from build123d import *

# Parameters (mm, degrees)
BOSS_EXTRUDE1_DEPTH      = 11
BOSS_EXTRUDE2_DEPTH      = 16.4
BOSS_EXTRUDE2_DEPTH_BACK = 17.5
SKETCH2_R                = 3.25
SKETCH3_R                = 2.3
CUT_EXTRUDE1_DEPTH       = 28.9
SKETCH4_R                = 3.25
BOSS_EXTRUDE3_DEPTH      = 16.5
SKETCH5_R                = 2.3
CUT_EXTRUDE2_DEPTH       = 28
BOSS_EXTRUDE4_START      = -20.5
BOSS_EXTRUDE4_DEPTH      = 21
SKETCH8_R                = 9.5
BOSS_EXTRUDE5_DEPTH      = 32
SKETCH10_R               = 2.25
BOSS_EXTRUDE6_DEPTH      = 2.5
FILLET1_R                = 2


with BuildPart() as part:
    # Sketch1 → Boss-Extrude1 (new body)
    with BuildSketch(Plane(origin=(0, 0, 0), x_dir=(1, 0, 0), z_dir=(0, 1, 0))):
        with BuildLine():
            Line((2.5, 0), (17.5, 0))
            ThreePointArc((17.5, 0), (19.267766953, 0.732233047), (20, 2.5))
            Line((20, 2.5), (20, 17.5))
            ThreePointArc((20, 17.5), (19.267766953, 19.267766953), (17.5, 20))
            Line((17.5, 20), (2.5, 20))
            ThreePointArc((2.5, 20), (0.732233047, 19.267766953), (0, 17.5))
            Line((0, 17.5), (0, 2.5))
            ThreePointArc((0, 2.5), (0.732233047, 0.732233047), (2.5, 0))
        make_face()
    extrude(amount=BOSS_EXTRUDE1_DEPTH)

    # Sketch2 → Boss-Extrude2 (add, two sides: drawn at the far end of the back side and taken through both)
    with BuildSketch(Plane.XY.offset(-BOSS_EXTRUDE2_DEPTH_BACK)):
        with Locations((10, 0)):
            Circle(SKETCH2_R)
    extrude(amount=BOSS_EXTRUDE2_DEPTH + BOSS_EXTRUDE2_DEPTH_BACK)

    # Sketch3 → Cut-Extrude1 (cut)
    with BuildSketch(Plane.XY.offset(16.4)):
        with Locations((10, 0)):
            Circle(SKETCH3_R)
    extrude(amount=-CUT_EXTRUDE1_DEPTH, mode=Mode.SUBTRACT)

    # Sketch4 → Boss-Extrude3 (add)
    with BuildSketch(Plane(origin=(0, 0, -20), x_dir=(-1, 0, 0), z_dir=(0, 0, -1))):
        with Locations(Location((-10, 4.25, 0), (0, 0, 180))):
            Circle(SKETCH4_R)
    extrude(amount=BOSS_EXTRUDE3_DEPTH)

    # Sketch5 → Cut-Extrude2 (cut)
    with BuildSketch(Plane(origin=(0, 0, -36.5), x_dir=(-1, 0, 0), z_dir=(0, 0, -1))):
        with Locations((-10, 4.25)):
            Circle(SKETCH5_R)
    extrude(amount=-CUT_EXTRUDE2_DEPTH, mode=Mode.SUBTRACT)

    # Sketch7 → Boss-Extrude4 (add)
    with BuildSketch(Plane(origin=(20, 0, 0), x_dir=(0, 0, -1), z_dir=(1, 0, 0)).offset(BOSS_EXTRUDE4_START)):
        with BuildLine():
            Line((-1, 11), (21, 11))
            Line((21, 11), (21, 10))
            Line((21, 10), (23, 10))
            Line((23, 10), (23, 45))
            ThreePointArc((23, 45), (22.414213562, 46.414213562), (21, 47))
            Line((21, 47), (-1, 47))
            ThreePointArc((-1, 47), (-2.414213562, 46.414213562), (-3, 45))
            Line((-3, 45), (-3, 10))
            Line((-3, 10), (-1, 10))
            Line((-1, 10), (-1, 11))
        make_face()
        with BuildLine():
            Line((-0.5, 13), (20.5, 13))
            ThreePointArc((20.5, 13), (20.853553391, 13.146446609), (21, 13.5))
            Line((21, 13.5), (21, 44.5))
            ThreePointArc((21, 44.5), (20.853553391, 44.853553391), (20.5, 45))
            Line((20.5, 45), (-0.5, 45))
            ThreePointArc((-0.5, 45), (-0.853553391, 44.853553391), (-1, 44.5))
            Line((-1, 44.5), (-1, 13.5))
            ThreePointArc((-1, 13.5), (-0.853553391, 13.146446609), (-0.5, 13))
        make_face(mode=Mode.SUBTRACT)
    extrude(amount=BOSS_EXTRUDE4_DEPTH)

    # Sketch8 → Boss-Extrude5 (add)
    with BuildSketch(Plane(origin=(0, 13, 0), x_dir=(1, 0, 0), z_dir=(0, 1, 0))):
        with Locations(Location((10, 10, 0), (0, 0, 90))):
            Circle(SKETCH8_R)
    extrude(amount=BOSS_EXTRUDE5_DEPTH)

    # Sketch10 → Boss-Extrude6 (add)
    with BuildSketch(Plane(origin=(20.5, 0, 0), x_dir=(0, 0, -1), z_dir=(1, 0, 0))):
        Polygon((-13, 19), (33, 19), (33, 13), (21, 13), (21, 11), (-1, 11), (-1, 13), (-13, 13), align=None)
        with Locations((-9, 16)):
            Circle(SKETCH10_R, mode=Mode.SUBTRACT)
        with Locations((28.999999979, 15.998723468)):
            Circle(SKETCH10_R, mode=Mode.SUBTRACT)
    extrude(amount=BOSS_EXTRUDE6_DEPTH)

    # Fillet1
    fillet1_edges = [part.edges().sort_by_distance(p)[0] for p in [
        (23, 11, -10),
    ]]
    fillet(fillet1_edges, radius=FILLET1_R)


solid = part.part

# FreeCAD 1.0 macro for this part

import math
import FreeCAD as App
import Part
import Sketcher

V = App.Vector
Q = App.Units.Quantity


def edges_at(feature, points):
    """Names of the edges that pass closest to the given points."""
    edges = feature.Shape.Edges
    near = lambda p: min(range(len(edges)), key=lambda i: edges[i].distToShape(Part.Vertex(*p))[0])
    return sorted({f"Edge{near(p) + 1}" for p in points})


def add_polygon(sketch, points):
    """Adds a closed chain of lines whose ends are joined by coincident constraints."""
    first, n = sketch.GeometryCount, len(points)
    for a, b in zip(points, points[1:] + points[:1]):
        sketch.addGeometry(Part.LineSegment(App.Vector(*a, 0), App.Vector(*b, 0)), False)
    for i in range(n):
        sketch.addConstraint(Sketcher.Constraint("Coincident", first + i, 2, first + (i + 1) % n, 1))

doc = App.newDocument("Part")
body = doc.addObject("PartDesign::Body", "Body")

sketch1 = doc.addObject("Sketcher::SketchObject", "Sketch")
body.addObject(sketch1)
sketch1.AttachmentSupport = (doc.XZ_Plane, [""])
sketch1.MapMode = "FlatFace"
sketch1.addGeometry([
    Part.LineSegment(V(2.5, 0, 0), V(17.5, 0, 0)),
    Part.ArcOfCircle(Part.Circle(V(17.5, -2.5, 0), V(0, 0, 1), 2.5), math.radians(0), math.radians(90)),
    Part.LineSegment(V(20, -2.5, 0), V(20, -17.5, 0)),
    Part.ArcOfCircle(Part.Circle(V(17.5, -17.5, 0), V(0, 0, 1), 2.5), math.radians(-90), math.radians(0)),
    Part.LineSegment(V(17.5, -20, 0), V(2.5, -20, 0)),
    Part.ArcOfCircle(Part.Circle(V(2.5, -17.5, 0), V(0, 0, 1), 2.5), math.radians(180), math.radians(270)),
    Part.LineSegment(V(0, -17.5, 0), V(0, -2.5, 0)),
    Part.ArcOfCircle(Part.Circle(V(2.5, -2.5, 0), V(0, 0, 1), 2.5), math.radians(90), math.radians(180)),
], False)
sketch1.addConstraint([
    Sketcher.Constraint("Tangent", 0, 2, 1, 2),
    Sketcher.Constraint("Tangent", 1, 1, 2, 1),
    Sketcher.Constraint("Tangent", 2, 2, 3, 2),
    Sketcher.Constraint("Tangent", 3, 1, 4, 1),
    Sketcher.Constraint("Tangent", 4, 2, 5, 2),
    Sketcher.Constraint("Tangent", 5, 1, 6, 1),
    Sketcher.Constraint("Tangent", 6, 2, 7, 2),
    Sketcher.Constraint("Tangent", 7, 1, 0, 1),
    Sketcher.Constraint("Horizontal", 0),
    Sketcher.Constraint("Vertical", 2),
    Sketcher.Constraint("Horizontal", 4),
    Sketcher.Constraint("Vertical", 6),
    Sketcher.Constraint("Equal", 1, 3),
    Sketcher.Constraint("Equal", 3, 5),
    Sketcher.Constraint("Equal", 5, 7),
    Sketcher.Constraint("PointOnObject", 0, 2, -1),
    Sketcher.Constraint("PointOnObject", 5, 1, -2),
    Sketcher.Constraint("Equal", 4, 2),
    Sketcher.Constraint("Radius", 1, Q("2.5 mm")),
    Sketcher.Constraint("DistanceX", 0, 1, 0, 2, Q("15 mm")),
])
pad1 = doc.addObject("PartDesign::Pad", "Pad")
body.addObject(pad1)
pad1.Profile = sketch1
pad1.Length = 11
pad1.Reversed = True

sketch2 = doc.addObject("Sketcher::SketchObject", "Sketch001")
body.addObject(sketch2)
sketch2.AttachmentSupport = (doc.XY_Plane, [""])
sketch2.MapMode = "FlatFace"
sketch2.addGeometry(Part.Circle(V(10, 0, 0), V(0, 0, 1), 3.2), False)
sketch2.addConstraint([
    Sketcher.Constraint("PointOnObject", 0, 3, -1),
    Sketcher.Constraint("Diameter", 0, Q("6.5 mm")),
    Sketcher.Constraint("DistanceX", -1, 1, 0, 3, Q("10 mm")),
])
pad2 = doc.addObject("PartDesign::Pad", "Pad001")
body.addObject(pad2)
pad2.Profile = sketch2
pad2.Type = "TwoLengths"
pad2.Length = 16.4
pad2.Length2 = 17.5

sketch3 = doc.addObject("Sketcher::SketchObject", "Sketch002")
body.addObject(sketch3)
sketch3.AttachmentSupport = (doc.XY_Plane, [""])
sketch3.MapMode = "FlatFace"
sketch3.AttachmentOffset = App.Placement(V(0, 0, 16.4), App.Rotation())
sketch3.addGeometry(Part.Circle(V(10, 0, 0), V(0, 0, 1), 2.3), False)
sketch3.addConstraint([
    Sketcher.Constraint("PointOnObject", 0, 3, -1),
    Sketcher.Constraint("Diameter", 0, Q("4.6 mm")),
    Sketcher.Constraint("DistanceX", -1, 1, 0, 3, Q("10 mm")),
])
pocket1 = doc.addObject("PartDesign::Pocket", "Pocket")
body.addObject(pocket1)
pocket1.Profile = sketch3
pocket1.Length = 28.9

sketch4 = doc.addObject("Sketcher::SketchObject", "Sketch003")
body.addObject(sketch4)
sketch4.AttachmentSupport = (doc.XY_Plane, [""])
sketch4.MapMode = "FlatFace"
sketch4.AttachmentOffset = App.Placement(V(0, 0, -20), App.Rotation())
sketch4.addGeometry(Part.Circle(V(10, 4.2, 0), V(0, 0, 1), 3.2), False)
sketch4.addConstraint([
    Sketcher.Constraint("Diameter", 0, Q("6.5 mm")),
    Sketcher.Constraint("DistanceX", -1, 1, 0, 3, Q("10 mm")),
    Sketcher.Constraint("DistanceY", -1, 1, 0, 3, Q("4.25 mm")),
])
pad3 = doc.addObject("PartDesign::Pad", "Pad002")
body.addObject(pad3)
pad3.Profile = sketch4
pad3.Length = 16.5
pad3.Reversed = True

sketch5 = doc.addObject("Sketcher::SketchObject", "Sketch004")
body.addObject(sketch5)
sketch5.AttachmentSupport = (doc.XY_Plane, [""])
sketch5.MapMode = "FlatFace"
sketch5.AttachmentOffset = App.Placement(V(0, 0, -36.5), App.Rotation())
sketch5.addGeometry(Part.Circle(V(10, 4.2, 0), V(0, 0, 1), 2.3), False)
sketch5.addConstraint([
    Sketcher.Constraint("Diameter", 0, Q("4.6 mm")),
    Sketcher.Constraint("DistanceX", -1, 1, 0, 3, Q("10 mm")),
    Sketcher.Constraint("DistanceY", -1, 1, 0, 3, Q("4.25 mm")),
])
pocket2 = doc.addObject("PartDesign::Pocket", "Pocket001")
body.addObject(pocket2)
pocket2.Profile = sketch5
pocket2.Length = 28
pocket2.Reversed = True

sketch6 = doc.addObject("Sketcher::SketchObject", "Sketch005")
body.addObject(sketch6)
sketch6.AttachmentSupport = (doc.YZ_Plane, [""])
sketch6.MapMode = "FlatFace"
sketch6.AttachmentOffset = App.Placement(V(0, 0, -0.5), App.Rotation())
sketch6.addGeometry([
    Part.LineSegment(V(11, 1, 0), V(11, -21, 0)),
    Part.LineSegment(V(11, -21, 0), V(10, -21, 0)),
    Part.LineSegment(V(10, -21, 0), V(10, -23, 0)),
    Part.LineSegment(V(10, -23, 0), V(45, -23, 0)),
    Part.ArcOfCircle(Part.Circle(V(45, -21, 0), V(0, 0, 1), 2), math.radians(-90), math.radians(0)),
    Part.LineSegment(V(47, -21, 0), V(47, 1, 0)),
    Part.ArcOfCircle(Part.Circle(V(45, 1, 0), V(0, 0, 1), 2), math.radians(0), math.radians(90)),
    Part.LineSegment(V(45, 3, 0), V(10, 3, 0)),
    Part.LineSegment(V(10, 3, 0), V(10, 1, 0)),
    Part.LineSegment(V(10, 1, 0), V(11, 1, 0)),
    Part.LineSegment(V(13, -20.5, 0), V(13, 0.5, 0)),
    Part.ArcOfCircle(Part.Circle(V(13.5, 0.5, 0), V(0, 0, 1), 0.5), math.radians(90), math.radians(180)),
    Part.LineSegment(V(13.5, 1, 0), V(44.5, 1, 0)),
    Part.ArcOfCircle(Part.Circle(V(44.5, 0.5, 0), V(0, 0, 1), 0.5), math.radians(0), math.radians(90)),
    Part.LineSegment(V(45, 0.5, 0), V(45, -20.5, 0)),
    Part.ArcOfCircle(Part.Circle(V(44.5, -20.5, 0), V(0, 0, 1), 0.5), math.radians(-90), math.radians(0)),
    Part.LineSegment(V(44.5, -21, 0), V(13.5, -21, 0)),
    Part.ArcOfCircle(Part.Circle(V(13.5, -20.5, 0), V(0, 0, 1), 0.5), math.radians(180), math.radians(270)),
], False)
sketch6.addConstraint([
    Sketcher.Constraint("Coincident", 0, 2, 1, 1),
    Sketcher.Constraint("Coincident", 1, 2, 2, 1),
    Sketcher.Constraint("Coincident", 2, 2, 3, 1),
    Sketcher.Constraint("Tangent", 3, 2, 4, 1),
    Sketcher.Constraint("Tangent", 4, 2, 5, 1),
    Sketcher.Constraint("Tangent", 5, 2, 6, 1),
    Sketcher.Constraint("Tangent", 6, 2, 7, 1),
    Sketcher.Constraint("Coincident", 7, 2, 8, 1),
    Sketcher.Constraint("Coincident", 8, 2, 9, 1),
    Sketcher.Constraint("Coincident", 9, 2, 0, 1),
    Sketcher.Constraint("Tangent", 10, 2, 11, 2),
    Sketcher.Constraint("Tangent", 11, 1, 12, 1),
    Sketcher.Constraint("Tangent", 12, 2, 13, 2),
    Sketcher.Constraint("Tangent", 13, 1, 14, 1),
    Sketcher.Constraint("Tangent", 14, 2, 15, 2),
    Sketcher.Constraint("Tangent", 15, 1, 16, 1),
    Sketcher.Constraint("Tangent", 16, 2, 17, 2),
    Sketcher.Constraint("Tangent", 17, 1, 10, 1),
    Sketcher.Constraint("Vertical", 0),
    Sketcher.Constraint("Horizontal", 1),
    Sketcher.Constraint("Vertical", 2),
    Sketcher.Constraint("Horizontal", 3),
    Sketcher.Constraint("Vertical", 5),
    Sketcher.Constraint("Horizontal", 7),
    Sketcher.Constraint("Vertical", 8),
    Sketcher.Constraint("Horizontal", 9),
    Sketcher.Constraint("Vertical", 10),
    Sketcher.Constraint("Horizontal", 12),
    Sketcher.Constraint("Vertical", 14),
    Sketcher.Constraint("Horizontal", 16),
    Sketcher.Constraint("Equal", 4, 6),
    Sketcher.Constraint("Equal", 11, 13),
    Sketcher.Constraint("Equal", 13, 15),
    Sketcher.Constraint("Equal", 15, 17),
    Sketcher.Constraint("Horizontal", 4, 3, 0, 2),
    Sketcher.Constraint("Horizontal", 5, 2, 8, 2),
    Sketcher.Constraint("Horizontal", 9, 2, 11, 1),
    Sketcher.Constraint("Horizontal", 4, 2, 15, 1),
    Sketcher.Constraint("Vertical", 2, 2, 7, 2),
    Sketcher.Constraint("Vertical", 6, 2, 13, 1),
    Sketcher.Constraint("Radius", 4, Q("2 mm")),
    Sketcher.Constraint("Radius", 11, Q("0.5 mm")),
    Sketcher.Constraint("DistanceX", 1, 2, 1, 1, Q("1 mm")),
    Sketcher.Constraint("DistanceX", 3, 1, 3, 2, Q("35 mm")),
    Sketcher.Constraint("DistanceX", 12, 1, 12, 2, Q("31 mm")),
    Sketcher.Constraint("DistanceY", 0, 2, 0, 1, Q("22 mm")),
    Sketcher.Constraint("DistanceX", -1, 1, 4, 3, Q("45 mm")),
    Sketcher.Constraint("DistanceY", 4, 3, -1, 1, Q("21 mm")),
])
pad4 = doc.addObject("PartDesign::Pad", "Pad003")
body.addObject(pad4)
pad4.Profile = sketch6
pad4.Length = 21

sketch7 = doc.addObject("Sketcher::SketchObject", "Sketch006")
body.addObject(sketch7)
sketch7.AttachmentSupport = (doc.XZ_Plane, [""])
sketch7.MapMode = "FlatFace"
sketch7.AttachmentOffset = App.Placement(V(0, 0, -13), App.Rotation())
sketch7.addGeometry(Part.Circle(V(10, -10, 0), V(0, 0, 1), 10), False)
sketch7.addConstraint([
    Sketcher.Constraint("Diameter", 0, Q("19 mm")),
    Sketcher.Constraint("DistanceX", -1, 1, 0, 3, Q("10 mm")),
    Sketcher.Constraint("DistanceY", 0, 3, -1, 1, Q("10 mm")),
])
pad5 = doc.addObject("PartDesign::Pad", "Pad004")
body.addObject(pad5)
pad5.Profile = sketch7
pad5.Length = 32
pad5.Reversed = True

sketch8 = doc.addObject("Sketcher::SketchObject", "Sketch007")
body.addObject(sketch8)
sketch8.AttachmentSupport = (doc.YZ_Plane, [""])
sketch8.MapMode = "FlatFace"
sketch8.AttachmentOffset = App.Placement(V(0, 0, 20.5), App.Rotation())
add_polygon(sketch8, [(19, -33), (19, 13), (13, 13), (13, 1), (11, 1), (11, -21), (13, -21), (13, -33)])
sketch8.addGeometry(Part.Circle(V(16, -29, 0), V(0, 0, 1), 2.2), False)
sketch8.addGeometry(Part.Circle(V(16, 9, 0), V(0, 0, 1), 2.2), False)
sketch8.addConstraint([
    Sketcher.Constraint("Vertical", 0),
    Sketcher.Constraint("Horizontal", 1),
    Sketcher.Constraint("Vertical", 2),
    Sketcher.Constraint("Horizontal", 3),
    Sketcher.Constraint("Vertical", 4),
    Sketcher.Constraint("Horizontal", 5),
    Sketcher.Constraint("Vertical", 6),
    Sketcher.Constraint("Horizontal", 7),
    Sketcher.Constraint("Equal", 8, 9),
    Sketcher.Constraint("Vertical", 2, 2, 5, 2),
    Sketcher.Constraint("Equal", 2, 6),
    Sketcher.Constraint("Diameter", 8, Q("4.5 mm")),
    Sketcher.Constraint("DistanceX", 1, 2, 1, 1, Q("6 mm")),
    Sketcher.Constraint("DistanceX", 3, 2, 3, 1, Q("2 mm")),
    Sketcher.Constraint("DistanceY", 0, 1, 0, 2, Q("46 mm")),
    Sketcher.Constraint("DistanceY", 2, 2, 2, 1, Q("12 mm")),
    Sketcher.Constraint("DistanceY", 8, 3, -1, 1, Q("29 mm")),
    Sketcher.Constraint("DistanceX", -1, 1, 9, 3, Q("16 mm")),
    Sketcher.Constraint("DistanceY", -1, 1, 9, 3, Q("9 mm")),
    Sketcher.Constraint("DistanceX", -1, 1, 0, 2, Q("19 mm")),
    Sketcher.Constraint("DistanceY", -1, 1, 0, 2, Q("13 mm")),
    Sketcher.Constraint("DistanceX", -1, 1, 8, 3, Q("15.998723 mm")),
])
pad6 = doc.addObject("PartDesign::Pad", "Pad005")
body.addObject(pad6)
pad6.Profile = sketch8
pad6.Length = 2.5
doc.recompute()

fillet = doc.addObject("PartDesign::Fillet", "Fillet")
body.addObject(fillet)
fillet.Base = (pad6, edges_at(pad6, [(23, 11, -10)]))
fillet.Radius = 2

doc.recompute()
